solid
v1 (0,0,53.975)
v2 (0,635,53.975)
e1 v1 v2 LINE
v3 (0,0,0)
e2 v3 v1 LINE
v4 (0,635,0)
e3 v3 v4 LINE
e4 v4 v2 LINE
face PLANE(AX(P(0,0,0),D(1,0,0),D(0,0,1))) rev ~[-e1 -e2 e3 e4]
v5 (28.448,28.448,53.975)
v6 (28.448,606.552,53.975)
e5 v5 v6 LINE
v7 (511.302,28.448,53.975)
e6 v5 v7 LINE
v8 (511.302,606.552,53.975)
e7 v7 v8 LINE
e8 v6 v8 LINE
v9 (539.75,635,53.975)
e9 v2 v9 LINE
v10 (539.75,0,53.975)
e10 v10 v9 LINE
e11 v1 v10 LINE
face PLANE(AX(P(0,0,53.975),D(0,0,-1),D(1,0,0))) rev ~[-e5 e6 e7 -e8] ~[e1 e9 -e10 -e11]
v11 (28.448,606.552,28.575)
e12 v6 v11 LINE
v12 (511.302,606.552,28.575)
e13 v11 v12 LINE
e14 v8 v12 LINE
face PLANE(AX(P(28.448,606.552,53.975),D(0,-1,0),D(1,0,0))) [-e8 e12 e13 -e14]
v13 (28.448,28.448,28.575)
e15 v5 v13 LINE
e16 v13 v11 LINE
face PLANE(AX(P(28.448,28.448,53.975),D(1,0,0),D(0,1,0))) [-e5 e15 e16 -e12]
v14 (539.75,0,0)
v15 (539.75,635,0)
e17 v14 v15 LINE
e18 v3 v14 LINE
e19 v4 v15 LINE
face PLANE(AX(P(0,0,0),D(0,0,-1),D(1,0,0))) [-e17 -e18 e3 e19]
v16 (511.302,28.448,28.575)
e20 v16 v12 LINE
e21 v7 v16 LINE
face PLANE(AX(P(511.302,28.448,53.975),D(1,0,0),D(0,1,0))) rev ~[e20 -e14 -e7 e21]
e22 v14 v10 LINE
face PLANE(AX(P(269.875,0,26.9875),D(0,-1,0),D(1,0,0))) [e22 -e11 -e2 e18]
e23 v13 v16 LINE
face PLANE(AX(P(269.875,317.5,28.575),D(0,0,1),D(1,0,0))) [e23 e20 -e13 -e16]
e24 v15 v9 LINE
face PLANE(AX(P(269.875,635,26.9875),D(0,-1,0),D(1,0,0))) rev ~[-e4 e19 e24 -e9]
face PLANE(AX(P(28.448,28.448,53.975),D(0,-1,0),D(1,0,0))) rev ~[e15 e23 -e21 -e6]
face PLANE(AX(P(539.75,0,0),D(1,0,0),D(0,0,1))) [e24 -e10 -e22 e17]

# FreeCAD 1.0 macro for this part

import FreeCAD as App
import Part
import Sketcher

V = App.Vector
Q = App.Units.Quantity


def add_polygon(sketch, points):
    """Adds a closed chain of lines whose ends are joined by coincident constraints."""
    first, n = sketch.GeometryCount, len(points)
    for a, b in zip(points, points[1:] + points[:1]):
        sketch.addGeometry(Part.LineSegment(App.Vector(*a, 0), App.Vector(*b, 0)), False)
    for i in range(n):
        sketch.addConstraint(Sketcher.Constraint("Coincident", first + i, 2, first + (i + 1) % n, 1))

doc = App.newDocument("Part")
body = doc.addObject("PartDesign::Body", "Body")

sketch1 = doc.addObject("Sketcher::SketchObject", "Sketch")
body.addObject(sketch1)
sketch1.AttachmentSupport = (doc.XZ_Plane, [""])
sketch1.MapMode = "FlatFace"
add_polygon(sketch1, [(0, 54), (0, 0), (540, 0), (540, 54)])
sketch1.addConstraint(Sketcher.Constraint("Vertical", 0))
sketch1.addConstraint(Sketcher.Constraint("Horizontal", 1))
sketch1.addConstraint(Sketcher.Constraint("Vertical", 2))
sketch1.addConstraint(Sketcher.Constraint("Horizontal", 3))
sketch1.addConstraint(Sketcher.Constraint("Coincident", 0, 2, -1, 1))
sketch1.addConstraint(Sketcher.Constraint("DistanceX", 1, 1, 1, 2, Q("21.25 in")))
sketch1.addConstraint(Sketcher.Constraint("DistanceY", 0, 2, 0, 1, Q("2.125 in")))
pad1 = doc.addObject("PartDesign::Pad", "Pad")
body.addObject(pad1)
pad1.Profile = sketch1
pad1.Length = Q("25 in")
pad1.Reversed = True

sketch2 = doc.addObject("Sketcher::SketchObject", "Sketch001")
body.addObject(sketch2)
sketch2.AttachmentSupport = (doc.XY_Plane, [""])
sketch2.MapMode = "FlatFace"
sketch2.AttachmentOffset = App.Placement(V(0, 0, 2.125 * 25.4), App.Rotation())
add_polygon(sketch2, [(28, 607), (28, 28), (511, 28), (511, 607)])
sketch2.addConstraint(Sketcher.Constraint("Vertical", 0))
sketch2.addConstraint(Sketcher.Constraint("Horizontal", 1))
sketch2.addConstraint(Sketcher.Constraint("Vertical", 2))
sketch2.addConstraint(Sketcher.Constraint("Horizontal", 3))
sketch2.addConstraint(Sketcher.Constraint("DistanceX", 1, 1, 1, 2, Q("19.01 in")))
sketch2.addConstraint(Sketcher.Constraint("DistanceY", 0, 2, 0, 1, Q("22.76 in")))
sketch2.addConstraint(Sketcher.Constraint("DistanceX", -1, 1, 0, 2, Q("1.12 in")))
sketch2.addConstraint(Sketcher.Constraint("DistanceY", -1, 1, 0, 2, Q("1.12 in")))
pocket1 = doc.addObject("PartDesign::Pocket", "Pocket")
body.addObject(pocket1)
pocket1.Profile = sketch2
pocket1.Length = Q("1 in")
body2 = doc.addObject("PartDesign::Body", "Body001")

sketch3 = doc.addObject("Sketcher::SketchObject", "Sketch002")
body2.addObject(sketch3)
sketch3.AttachmentSupport = (doc.getObject("XY_Plane001"), [""])
sketch3.MapMode = "FlatFace"
sketch3.AttachmentOffset = App.Placement(V(0, 0, 2.125 * 25.4), App.Rotation())
add_polygon(sketch3, [(0, 635), (0, 0), (540, 0), (540, 635)])
sketch3.addConstraint(Sketcher.Constraint("Vertical", 0))
sketch3.addConstraint(Sketcher.Constraint("Horizontal", 1))
sketch3.addConstraint(Sketcher.Constraint("Vertical", 2))
sketch3.addConstraint(Sketcher.Constraint("Horizontal", 3))
sketch3.addConstraint(Sketcher.Constraint("Coincident", 0, 2, -1, 1))
sketch3.addConstraint(Sketcher.Constraint("DistanceY", 0, 2, 0, 1, Q("25 in")))
sketch3.addConstraint(Sketcher.Constraint("DistanceX", 1, 1, 1, 2, Q("21.25 in")))
pad2 = doc.addObject("PartDesign::Pad", "Pad001")
body2.addObject(pad2)
pad2.Profile = sketch3
pad2.Length = Q("1.125 in")
body2.Visibility = False

doc.recompute()
